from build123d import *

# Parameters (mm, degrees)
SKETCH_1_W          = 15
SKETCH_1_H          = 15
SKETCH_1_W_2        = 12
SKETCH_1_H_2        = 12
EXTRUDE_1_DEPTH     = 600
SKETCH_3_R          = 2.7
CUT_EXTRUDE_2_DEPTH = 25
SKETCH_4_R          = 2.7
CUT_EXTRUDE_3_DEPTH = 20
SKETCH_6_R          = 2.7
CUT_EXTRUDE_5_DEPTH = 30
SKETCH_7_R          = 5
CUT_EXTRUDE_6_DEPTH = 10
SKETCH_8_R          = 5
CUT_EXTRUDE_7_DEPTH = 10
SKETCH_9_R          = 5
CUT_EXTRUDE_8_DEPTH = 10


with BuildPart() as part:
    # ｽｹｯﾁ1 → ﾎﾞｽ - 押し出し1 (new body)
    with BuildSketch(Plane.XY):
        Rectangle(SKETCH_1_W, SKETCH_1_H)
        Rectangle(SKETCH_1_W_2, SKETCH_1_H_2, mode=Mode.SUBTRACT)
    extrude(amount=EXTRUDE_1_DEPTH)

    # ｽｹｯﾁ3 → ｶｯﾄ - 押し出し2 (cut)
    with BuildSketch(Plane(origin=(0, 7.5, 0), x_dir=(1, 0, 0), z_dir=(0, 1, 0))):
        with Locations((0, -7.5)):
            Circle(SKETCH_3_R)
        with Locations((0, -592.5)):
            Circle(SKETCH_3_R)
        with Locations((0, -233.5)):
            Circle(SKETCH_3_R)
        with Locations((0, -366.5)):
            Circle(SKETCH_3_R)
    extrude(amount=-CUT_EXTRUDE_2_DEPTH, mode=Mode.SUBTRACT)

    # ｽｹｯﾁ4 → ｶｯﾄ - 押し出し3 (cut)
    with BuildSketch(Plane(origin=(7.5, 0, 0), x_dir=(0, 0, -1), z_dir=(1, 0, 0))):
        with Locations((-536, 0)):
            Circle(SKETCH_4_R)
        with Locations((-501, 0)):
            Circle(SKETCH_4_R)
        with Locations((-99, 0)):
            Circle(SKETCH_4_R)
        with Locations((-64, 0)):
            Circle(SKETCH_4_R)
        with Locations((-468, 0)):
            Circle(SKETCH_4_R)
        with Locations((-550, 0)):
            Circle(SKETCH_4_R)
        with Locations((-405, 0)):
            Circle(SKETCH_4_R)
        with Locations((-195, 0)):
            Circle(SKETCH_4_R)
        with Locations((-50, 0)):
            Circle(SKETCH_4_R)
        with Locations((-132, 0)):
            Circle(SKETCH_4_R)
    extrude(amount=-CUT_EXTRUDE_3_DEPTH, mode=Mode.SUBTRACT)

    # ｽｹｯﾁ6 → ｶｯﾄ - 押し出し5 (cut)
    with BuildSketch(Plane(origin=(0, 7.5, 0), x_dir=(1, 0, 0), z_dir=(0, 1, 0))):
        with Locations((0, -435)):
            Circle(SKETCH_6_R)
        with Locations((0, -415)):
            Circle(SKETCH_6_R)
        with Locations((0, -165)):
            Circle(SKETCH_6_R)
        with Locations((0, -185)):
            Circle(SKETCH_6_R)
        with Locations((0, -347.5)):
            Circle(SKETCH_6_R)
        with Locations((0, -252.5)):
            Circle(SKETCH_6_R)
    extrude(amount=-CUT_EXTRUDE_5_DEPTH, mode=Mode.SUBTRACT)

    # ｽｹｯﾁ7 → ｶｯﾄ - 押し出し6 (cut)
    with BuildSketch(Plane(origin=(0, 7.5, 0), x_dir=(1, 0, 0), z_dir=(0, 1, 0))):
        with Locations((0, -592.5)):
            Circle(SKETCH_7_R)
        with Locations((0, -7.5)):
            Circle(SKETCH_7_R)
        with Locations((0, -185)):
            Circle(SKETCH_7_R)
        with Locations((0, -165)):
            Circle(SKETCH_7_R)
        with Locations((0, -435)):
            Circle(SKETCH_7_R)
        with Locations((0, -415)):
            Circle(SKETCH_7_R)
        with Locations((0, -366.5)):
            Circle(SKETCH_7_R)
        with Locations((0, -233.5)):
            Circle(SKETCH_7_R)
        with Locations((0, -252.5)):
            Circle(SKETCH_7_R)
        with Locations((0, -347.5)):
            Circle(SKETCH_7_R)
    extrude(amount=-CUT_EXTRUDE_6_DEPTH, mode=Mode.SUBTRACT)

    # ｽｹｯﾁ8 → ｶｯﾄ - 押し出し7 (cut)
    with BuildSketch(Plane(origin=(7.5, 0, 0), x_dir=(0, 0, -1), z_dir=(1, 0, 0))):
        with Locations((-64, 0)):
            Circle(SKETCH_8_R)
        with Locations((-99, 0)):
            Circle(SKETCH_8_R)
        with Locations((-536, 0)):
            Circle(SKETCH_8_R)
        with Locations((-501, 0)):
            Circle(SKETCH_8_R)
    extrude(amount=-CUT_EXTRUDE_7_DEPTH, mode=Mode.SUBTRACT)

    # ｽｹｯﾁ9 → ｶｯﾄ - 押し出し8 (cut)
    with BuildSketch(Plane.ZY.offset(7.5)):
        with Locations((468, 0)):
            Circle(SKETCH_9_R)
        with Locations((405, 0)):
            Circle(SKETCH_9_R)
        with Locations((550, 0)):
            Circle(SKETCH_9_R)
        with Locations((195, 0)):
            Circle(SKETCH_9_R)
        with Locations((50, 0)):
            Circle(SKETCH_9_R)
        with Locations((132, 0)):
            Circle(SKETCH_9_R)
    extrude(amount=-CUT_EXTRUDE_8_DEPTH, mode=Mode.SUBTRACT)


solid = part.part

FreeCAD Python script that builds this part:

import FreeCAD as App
import Part
import Sketcher


def add_polygon(sketch, points):
    """Adds a closed chain of lines whose ends are joined by coincident constraints."""
    first, n = sketch.GeometryCount, len(points)
    for a, b in zip(points, points[1:] + points[:1]):
        sketch.addGeometry(Part.LineSegment(App.Vector(*a, 0), App.Vector(*b, 0)), False)
    for i in range(n):
        sketch.addConstraint(Sketcher.Constraint("Coincident", first + i, 2, first + (i + 1) % n, 1))

doc = App.newDocument("Part")
body = doc.addObject("PartDesign::Body", "Body")

sketch1 = body.newObject("Sketcher::SketchObject", "Sketch")
sketch1.AttachmentSupport = (doc.getObject("XY_Plane"), [""])
sketch1.MapMode = "FlatFace"
add_polygon(sketch1, [(-7.5, 7.5), (-7.5, -7.5), (7.5, -7.5), (7.5, 7.5)])
add_polygon(sketch1, [(6, -6), (-6, -6), (-6, 6), (6, 6)])
sketch1.addConstraint(Sketcher.Constraint("Vertical", 0))
sketch1.addConstraint(Sketcher.Constraint("Horizontal", 1))
sketch1.addConstraint(Sketcher.Constraint("Vertical", 2))
sketch1.addConstraint(Sketcher.Constraint("Horizontal", 3))
sketch1.addConstraint(Sketcher.Constraint("Horizontal", 4))
sketch1.addConstraint(Sketcher.Constraint("Vertical", 5))
sketch1.addConstraint(Sketcher.Constraint("Horizontal", 6))
sketch1.addConstraint(Sketcher.Constraint("Vertical", 7))
sketch1.addConstraint(Sketcher.Constraint("Symmetric", 0, 2, 2, 2, -1, 1))
sketch1.addConstraint(Sketcher.Constraint("Symmetric", 4, 2, 6, 2, -1, 1))
sketch1.addConstraint(Sketcher.Constraint("Equal", 3, 0))
sketch1.addConstraint(Sketcher.Constraint("Equal", 6, 5))
sketch1.addConstraint(Sketcher.Constraint("DistanceX", 1, 1, 1, 2, 15.0))
sketch1.addConstraint(Sketcher.Constraint("DistanceX", 4, 2, 4, 1, 12.0))
pad1 = body.newObject("PartDesign::Pad", "Pad")
pad1.Profile = sketch1
pad1.Length = 600

sketch2 = body.newObject("Sketcher::SketchObject", "Sketch001")
sketch2.AttachmentSupport = (doc.getObject("XZ_Plane"), [""])
sketch2.MapMode = "FlatFace"
sketch2.AttachmentOffset = App.Placement(App.Vector(0, 0, -7.5), App.Rotation())
sketch2.addGeometry(Part.Circle(App.Vector(0, 7.5, 0), App.Vector(0, 0, 1), 2.7), False)
sketch2.addGeometry(Part.Circle(App.Vector(0, 592.5, 0), App.Vector(0, 0, 1), 2.7), False)
sketch2.addGeometry(Part.Circle(App.Vector(0, 233.5, 0), App.Vector(0, 0, 1), 2.7), False)
sketch2.addGeometry(Part.Circle(App.Vector(0, 366.5, 0), App.Vector(0, 0, 1), 2.7), False)
sketch2.addConstraint(Sketcher.Constraint("Equal", 0, 1))
sketch2.addConstraint(Sketcher.Constraint("Equal", 1, 2))
sketch2.addConstraint(Sketcher.Constraint("Equal", 2, 3))
sketch2.addConstraint(Sketcher.Constraint("PointOnObject", 0, 3, -2))
sketch2.addConstraint(Sketcher.Constraint("PointOnObject", 1, 3, -2))
sketch2.addConstraint(Sketcher.Constraint("PointOnObject", 2, 3, -2))
sketch2.addConstraint(Sketcher.Constraint("PointOnObject", 3, 3, -2))
sketch2.addConstraint(Sketcher.Constraint("Diameter", 0, 5.4))
sketch2.addConstraint(Sketcher.Constraint("DistanceY", 0, 3, 1, 3, 585.0))
sketch2.addConstraint(Sketcher.Constraint("DistanceY", 0, 3, 2, 3, 226.0))
sketch2.addConstraint(Sketcher.Constraint("DistanceY", 2, 3, 3, 3, 133.0))
sketch2.addConstraint(Sketcher.Constraint("DistanceY", -1, 1, 0, 3, 7.5))
pocket1 = body.newObject("PartDesign::Pocket", "Pocket")
pocket1.Profile = sketch2
pocket1.Length = 25
pocket1.Reversed = True

sketch3 = body.newObject("Sketcher::SketchObject", "Sketch002")
sketch3.AttachmentSupport = (doc.getObject("YZ_Plane"), [""])
sketch3.MapMode = "FlatFace"
sketch3.AttachmentOffset = App.Placement(App.Vector(0, 0, 7.5), App.Rotation())
sketch3.addGeometry(Part.Circle(App.Vector(0, 536, 0), App.Vector(0, 0, 1), 2.7), False)
sketch3.addGeometry(Part.Circle(App.Vector(0, 501, 0), App.Vector(0, 0, 1), 2.7), False)
sketch3.addGeometry(Part.Circle(App.Vector(0, 99, 0), App.Vector(0, 0, 1), 2.7), False)
sketch3.addGeometry(Part.Circle(App.Vector(0, 64, 0), App.Vector(0, 0, 1), 2.7), False)
sketch3.addGeometry(Part.Circle(App.Vector(0, 468, 0), App.Vector(0, 0, 1), 2.7), False)
sketch3.addGeometry(Part.Circle(App.Vector(0, 550, 0), App.Vector(0, 0, 1), 2.7), False)
sketch3.addGeometry(Part.Circle(App.Vector(0, 405, 0), App.Vector(0, 0, 1), 2.7), False)
sketch3.addGeometry(Part.Circle(App.Vector(0, 195, 0), App.Vector(0, 0, 1), 2.7), False)
sketch3.addGeometry(Part.Circle(App.Vector(0, 50, 0), App.Vector(0, 0, 1), 2.7), False)
sketch3.addGeometry(Part.Circle(App.Vector(0, 132, 0), App.Vector(0, 0, 1), 2.7), False)
sketch3.addConstraint(Sketcher.Constraint("Equal", 0, 1))
sketch3.addConstraint(Sketcher.Constraint("Equal", 1, 2))
sketch3.addConstraint(Sketcher.Constraint("Equal", 2, 3))
sketch3.addConstraint(Sketcher.Constraint("Equal", 3, 4))
sketch3.addConstraint(Sketcher.Constraint("Equal", 4, 5))
sketch3.addConstraint(Sketcher.Constraint("Equal", 5, 6))
sketch3.addConstraint(Sketcher.Constraint("Equal", 6, 7))
sketch3.addConstraint(Sketcher.Constraint("Equal", 7, 8))
sketch3.addConstraint(Sketcher.Constraint("Equal", 8, 9))
sketch3.addConstraint(Sketcher.Constraint("PointOnObject", 0, 3, -2))
sketch3.addConstraint(Sketcher.Constraint("PointOnObject", 1, 3, -2))
sketch3.addConstraint(Sketcher.Constraint("PointOnObject", 2, 3, -2))
sketch3.addConstraint(Sketcher.Constraint("PointOnObject", 3, 3, -2))
sketch3.addConstraint(Sketcher.Constraint("PointOnObject", 4, 3, -2))
sketch3.addConstraint(Sketcher.Constraint("PointOnObject", 5, 3, -2))
sketch3.addConstraint(Sketcher.Constraint("PointOnObject", 6, 3, -2))
sketch3.addConstraint(Sketcher.Constraint("PointOnObject", 7, 3, -2))
sketch3.addConstraint(Sketcher.Constraint("PointOnObject", 8, 3, -2))
sketch3.addConstraint(Sketcher.Constraint("PointOnObject", 9, 3, -2))
sketch3.addConstraint(Sketcher.Constraint("Diameter", 0, 5.4))
sketch3.addConstraint(Sketcher.Constraint("DistanceY", -1, 1, 0, 3, 536.0))
sketch3.addConstraint(Sketcher.Constraint("DistanceY", -1, 1, 1, 3, 501.0))
sketch3.addConstraint(Sketcher.Constraint("DistanceY", -1, 1, 2, 3, 99.0))
sketch3.addConstraint(Sketcher.Constraint("DistanceY", -1, 1, 3, 3, 64.0))
sketch3.addConstraint(Sketcher.Constraint("DistanceY", -1, 1, 4, 3, 468.0))
sketch3.addConstraint(Sketcher.Constraint("DistanceY", -1, 1, 5, 3, 550.0))
sketch3.addConstraint(Sketcher.Constraint("DistanceY", -1, 1, 6, 3, 405.0))
sketch3.addConstraint(Sketcher.Constraint("DistanceY", -1, 1, 7, 3, 195.0))
sketch3.addConstraint(Sketcher.Constraint("DistanceY", -1, 1, 8, 3, 50.0))
sketch3.addConstraint(Sketcher.Constraint("DistanceY", -1, 1, 9, 3, 132.0))
pocket2 = body.newObject("PartDesign::Pocket", "Pocket001")
pocket2.Profile = sketch3
pocket2.Length = 20

sketch4 = body.newObject("Sketcher::SketchObject", "Sketch003")
sketch4.AttachmentSupport = (doc.getObject("XZ_Plane"), [""])
sketch4.MapMode = "FlatFace"
sketch4.AttachmentOffset = App.Placement(App.Vector(0, 0, -7.5), App.Rotation())
sketch4.addGeometry(Part.Circle(App.Vector(0, 435, 0), App.Vector(0, 0, 1), 2.7), False)
sketch4.addGeometry(Part.Circle(App.Vector(0, 415, 0), App.Vector(0, 0, 1), 2.7), False)
sketch4.addGeometry(Part.Circle(App.Vector(0, 165, 0), App.Vector(0, 0, 1), 2.7), False)
sketch4.addGeometry(Part.Circle(App.Vector(0, 185, 0), App.Vector(0, 0, 1), 2.7), False)
sketch4.addGeometry(Part.Circle(App.Vector(0, 347.5, 0), App.Vector(0, 0, 1), 2.7), False)
sketch4.addGeometry(Part.Circle(App.Vector(0, 252.5, 0), App.Vector(0, 0, 1), 2.7), False)
sketch4.addConstraint(Sketcher.Constraint("Equal", 0, 1))
sketch4.addConstraint(Sketcher.Constraint("Equal", 1, 2))
sketch4.addConstraint(Sketcher.Constraint("Equal", 2, 3))
sketch4.addConstraint(Sketcher.Constraint("Equal", 3, 4))
sketch4.addConstraint(Sketcher.Constraint("Equal", 4, 5))
sketch4.addConstraint(Sketcher.Constraint("PointOnObject", 0, 3, -2))
sketch4.addConstraint(Sketcher.Constraint("PointOnObject", 1, 3, -2))
sketch4.addConstraint(Sketcher.Constraint("PointOnObject", 2, 3, -2))
sketch4.addConstraint(Sketcher.Constraint("PointOnObject", 3, 3, -2))
sketch4.addConstraint(Sketcher.Constraint("PointOnObject", 4, 3, -2))
sketch4.addConstraint(Sketcher.Constraint("PointOnObject", 5, 3, -2))
sketch4.addConstraint(Sketcher.Constraint("Diameter", 0, 5.4))
sketch4.addConstraint(Sketcher.Constraint("DistanceY", -1, 1, 0, 3, 435.0))
sketch4.addConstraint(Sketcher.Constraint("DistanceY", -1, 1, 1, 3, 415.0))
sketch4.addConstraint(Sketcher.Constraint("DistanceY", -1, 1, 2, 3, 165.0))
sketch4.addConstraint(Sketcher.Constraint("DistanceY", -1, 1, 3, 3, 185.0))
sketch4.addConstraint(Sketcher.Constraint("DistanceY", 5, 3, 4, 3, 95.0))
sketch4.addConstraint(Sketcher.Constraint("DistanceY", -1, 1, 4, 3, 347.5))
pocket3 = body.newObject("PartDesign::Pocket", "Pocket002")
pocket3.Profile = sketch4
pocket3.Length = 30
pocket3.Reversed = True

sketch5 = body.newObject("Sketcher::SketchObject", "Sketch004")
sketch5.AttachmentSupport = (doc.getObject("XZ_Plane"), [""])
sketch5.MapMode = "FlatFace"
sketch5.AttachmentOffset = App.Placement(App.Vector(0, 0, -7.5), App.Rotation())
sketch5.addGeometry(Part.Circle(App.Vector(0, 592.5, 0), App.Vector(0, 0, 1), 5), False)
sketch5.addGeometry(Part.Circle(App.Vector(0, 7.5, 0), App.Vector(0, 0, 1), 5), False)
sketch5.addGeometry(Part.Circle(App.Vector(0, 185, 0), App.Vector(0, 0, 1), 5), False)
sketch5.addGeometry(Part.Circle(App.Vector(0, 165, 0), App.Vector(0, 0, 1), 5), False)
sketch5.addGeometry(Part.Circle(App.Vector(0, 435, 0), App.Vector(0, 0, 1), 5), False)
sketch5.addGeometry(Part.Circle(App.Vector(0, 415, 0), App.Vector(0, 0, 1), 5), False)
sketch5.addGeometry(Part.Circle(App.Vector(0, 366.5, 0), App.Vector(0, 0, 1), 5), False)
sketch5.addGeometry(Part.Circle(App.Vector(0, 233.5, 0), App.Vector(0, 0, 1), 5), False)
sketch5.addGeometry(Part.Circle(App.Vector(0, 252.5, 0), App.Vector(0, 0, 1), 5), False)
sketch5.addGeometry(Part.Circle(App.Vector(0, 347.5, 0), App.Vector(0, 0, 1), 5), False)
sketch5.addConstraint(Sketcher.Constraint("Equal", 0, 1))
sketch5.addConstraint(Sketcher.Constraint("Equal", 1, 2))
sketch5.addConstraint(Sketcher.Constraint("Equal", 2, 3))
sketch5.addConstraint(Sketcher.Constraint("Equal", 3, 4))
sketch5.addConstraint(Sketcher.Constraint("Equal", 4, 5))
sketch5.addConstraint(Sketcher.Constraint("Equal", 5, 6))
sketch5.addConstraint(Sketcher.Constraint("Equal", 6, 7))
sketch5.addConstraint(Sketcher.Constraint("Equal", 7, 8))
sketch5.addConstraint(Sketcher.Constraint("Equal", 8, 9))
sketch5.addConstraint(Sketcher.Constraint("PointOnObject", 0, 3, -2))
sketch5.addConstraint(Sketcher.Constraint("PointOnObject", 1, 3, -2))
sketch5.addConstraint(Sketcher.Constraint("PointOnObject", 2, 3, -2))
sketch5.addConstraint(Sketcher.Constraint("PointOnObject", 3, 3, -2))
sketch5.addConstraint(Sketcher.Constraint("PointOnObject", 4, 3, -2))
sketch5.addConstraint(Sketcher.Constraint("PointOnObject", 5, 3, -2))
sketch5.addConstraint(Sketcher.Constraint("PointOnObject", 6, 3, -2))
sketch5.addConstraint(Sketcher.Constraint("PointOnObject", 7, 3, -2))
sketch5.addConstraint(Sketcher.Constraint("PointOnObject", 8, 3, -2))
sketch5.addConstraint(Sketcher.Constraint("PointOnObject", 9, 3, -2))
sketch5.addConstraint(Sketcher.Constraint("Diameter", 0, 10.0))
sketch5.addConstraint(Sketcher.Constraint("DistanceY", -1, 1, 2, 3, 185.0))
sketch5.addConstraint(Sketcher.Constraint("DistanceY", -1, 1, 3, 3, 165.0))
sketch5.addConstraint(Sketcher.Constraint("DistanceY", -1, 1, 4, 3, 435.0))
sketch5.addConstraint(Sketcher.Constraint("DistanceY", -1, 1, 5, 3, 415.0))
sketch5.addConstraint(Sketcher.Constraint("DistanceY", 1, 3, 0, 3, 585.0))
sketch5.addConstraint(Sketcher.Constraint("DistanceY", 6, 3, 0, 3, 226.0))
sketch5.addConstraint(Sketcher.Constraint("DistanceY", 7, 3, 6, 3, 133.0))
sketch5.addConstraint(Sketcher.Constraint("DistanceY", 7, 3, 8, 3, 19.0))
sketch5.addConstraint(Sketcher.Constraint("DistanceY", 9, 3, 6, 3, 19.0))
sketch5.addConstraint(Sketcher.Constraint("DistanceY", -1, 1, 0, 3, 592.5))
pocket4 = body.newObject("PartDesign::Pocket", "Pocket003")
pocket4.Profile = sketch5
pocket4.Length = 10
pocket4.Reversed = True

sketch6 = body.newObject("Sketcher::SketchObject", "Sketch005")
sketch6.AttachmentSupport = (doc.getObject("YZ_Plane"), [""])
sketch6.MapMode = "FlatFace"
sketch6.AttachmentOffset = App.Placement(App.Vector(0, 0, 7.5), App.Rotation())
sketch6.addGeometry(Part.Circle(App.Vector(0, 64, 0), App.Vector(0, 0, 1), 5), False)
sketch6.addGeometry(Part.Circle(App.Vector(0, 99, 0), App.Vector(0, 0, 1), 5), False)
sketch6.addGeometry(Part.Circle(App.Vector(0, 536, 0), App.Vector(0, 0, 1), 5), False)
sketch6.addGeometry(Part.Circle(App.Vector(0, 501, 0), App.Vector(0, 0, 1), 5), False)
sketch6.addConstraint(Sketcher.Constraint("Equal", 0, 1))
sketch6.addConstraint(Sketcher.Constraint("Equal", 1, 2))
sketch6.addConstraint(Sketcher.Constraint("Equal", 2, 3))
sketch6.addConstraint(Sketcher.Constraint("PointOnObject", 0, 3, -2))
sketch6.addConstraint(Sketcher.Constraint("PointOnObject", 1, 3, -2))
sketch6.addConstraint(Sketcher.Constraint("PointOnObject", 2, 3, -2))
sketch6.addConstraint(Sketcher.Constraint("PointOnObject", 3, 3, -2))
sketch6.addConstraint(Sketcher.Constraint("Diameter", 0, 10.0))
sketch6.addConstraint(Sketcher.Constraint("DistanceY", -1, 1, 0, 3, 64.0))
sketch6.addConstraint(Sketcher.Constraint("DistanceY", -1, 1, 1, 3, 99.0))
sketch6.addConstraint(Sketcher.Constraint("DistanceY", -1, 1, 2, 3, 536.0))
sketch6.addConstraint(Sketcher.Constraint("DistanceY", -1, 1, 3, 3, 501.0))
pocket5 = body.newObject("PartDesign::Pocket", "Pocket004")
pocket5.Profile = sketch6
pocket5.Length = 10

sketch7 = body.newObject("Sketcher::SketchObject", "Sketch006")
sketch7.AttachmentSupport = (doc.getObject("YZ_Plane"), [""])
sketch7.MapMode = "FlatFace"
sketch7.AttachmentOffset = App.Placement(App.Vector(0, 0, -7.5), App.Rotation())
sketch7.addGeometry(Part.Circle(App.Vector(0, 468, 0), App.Vector(0, 0, 1), 5), False)
sketch7.addGeometry(Part.Circle(App.Vector(0, 405, 0), App.Vector(0, 0, 1), 5), False)
sketch7.addGeometry(Part.Circle(App.Vector(0, 550, 0), App.Vector(0, 0, 1), 5), False)
sketch7.addGeometry(Part.Circle(App.Vector(0, 195, 0), App.Vector(0, 0, 1), 5), False)
sketch7.addGeometry(Part.Circle(App.Vector(0, 50, 0), App.Vector(0, 0, 1), 5), False)
sketch7.addGeometry(Part.Circle(App.Vector(0, 132, 0), App.Vector(0, 0, 1), 5), False)
sketch7.addConstraint(Sketcher.Constraint("Equal", 0, 1))
sketch7.addConstraint(Sketcher.Constraint("Equal", 1, 2))
sketch7.addConstraint(Sketcher.Constraint("Equal", 2, 3))
sketch7.addConstraint(Sketcher.Constraint("Equal", 3, 4))
sketch7.addConstraint(Sketcher.Constraint("Equal", 4, 5))
sketch7.addConstraint(Sketcher.Constraint("PointOnObject", 0, 3, -2))
sketch7.addConstraint(Sketcher.Constraint("PointOnObject", 1, 3, -2))
sketch7.addConstraint(Sketcher.Constraint("PointOnObject", 2, 3, -2))
sketch7.addConstraint(Sketcher.Constraint("PointOnObject", 3, 3, -2))
sketch7.addConstraint(Sketcher.Constraint("PointOnObject", 4, 3, -2))
sketch7.addConstraint(Sketcher.Constraint("PointOnObject", 5, 3, -2))
sketch7.addConstraint(Sketcher.Constraint("Diameter", 0, 10.0))
sketch7.addConstraint(Sketcher.Constraint("DistanceY", -1, 1, 0, 3, 468.0))
sketch7.addConstraint(Sketcher.Constraint("DistanceY", -1, 1, 1, 3, 405.0))
sketch7.addConstraint(Sketcher.Constraint("DistanceY", -1, 1, 2, 3, 550.0))
sketch7.addConstraint(Sketcher.Constraint("DistanceY", -1, 1, 3, 3, 195.0))
sketch7.addConstraint(Sketcher.Constraint("DistanceY", -1, 1, 4, 3, 50.0))
sketch7.addConstraint(Sketcher.Constraint("DistanceY", -1, 1, 5, 3, 132.0))
pocket6 = body.newObject("PartDesign::Pocket", "Pocket005")
pocket6.Profile = sketch7
pocket6.Length = 10
pocket6.Reversed = True

doc.recompute()
